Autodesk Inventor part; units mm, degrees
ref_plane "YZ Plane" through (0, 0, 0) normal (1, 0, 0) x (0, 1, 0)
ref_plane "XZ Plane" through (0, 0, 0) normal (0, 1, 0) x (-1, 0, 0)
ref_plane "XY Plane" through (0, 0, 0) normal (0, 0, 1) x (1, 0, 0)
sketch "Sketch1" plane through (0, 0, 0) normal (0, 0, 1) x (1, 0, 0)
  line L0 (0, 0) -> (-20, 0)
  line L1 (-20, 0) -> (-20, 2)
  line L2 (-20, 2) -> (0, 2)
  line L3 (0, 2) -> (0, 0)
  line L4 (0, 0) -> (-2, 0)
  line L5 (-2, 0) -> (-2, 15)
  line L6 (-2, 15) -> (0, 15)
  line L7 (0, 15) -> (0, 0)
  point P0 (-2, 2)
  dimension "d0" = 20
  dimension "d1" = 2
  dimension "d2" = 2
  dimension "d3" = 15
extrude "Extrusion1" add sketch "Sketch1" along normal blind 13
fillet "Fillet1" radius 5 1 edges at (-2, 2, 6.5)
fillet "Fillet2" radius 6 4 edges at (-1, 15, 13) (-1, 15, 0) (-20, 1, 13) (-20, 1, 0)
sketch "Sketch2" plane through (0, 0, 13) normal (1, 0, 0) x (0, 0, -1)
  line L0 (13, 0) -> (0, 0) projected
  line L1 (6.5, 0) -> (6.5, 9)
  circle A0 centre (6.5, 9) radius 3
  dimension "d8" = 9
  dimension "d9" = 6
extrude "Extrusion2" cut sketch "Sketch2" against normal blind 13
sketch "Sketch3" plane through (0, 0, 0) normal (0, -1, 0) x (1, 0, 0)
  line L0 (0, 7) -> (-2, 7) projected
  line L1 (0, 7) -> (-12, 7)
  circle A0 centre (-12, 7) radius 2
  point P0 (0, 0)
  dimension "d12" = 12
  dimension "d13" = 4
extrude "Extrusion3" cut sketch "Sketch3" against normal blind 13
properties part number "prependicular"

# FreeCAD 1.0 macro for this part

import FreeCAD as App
import Part
import Sketcher
from FreeCAD import Vector
Q = App.Units.Quantity


def edges_at(feature, points):
    """Names of the edges that pass closest to the given points."""
    edges = feature.Shape.Edges
    near = lambda p: min(range(len(edges)), key=lambda i: edges[i].distToShape(Part.Vertex(*p))[0])
    return sorted({f"Edge{near(p) + 1}" for p in points})


def add_polygon(sketch, points):
    """Adds a closed chain of lines whose ends are joined by coincident constraints."""
    first, n = sketch.GeometryCount, len(points)
    for a, b in zip(points, points[1:] + points[:1]):
        sketch.addGeometry(Part.LineSegment(App.Vector(*a, 0), App.Vector(*b, 0)), False)
    for i in range(n):
        sketch.addConstraint(Sketcher.Constraint("Coincident", first + i, 2, first + (i + 1) % n, 1))

doc = App.newDocument("Part")
body = doc.addObject("PartDesign::Body", "Body")

sketch1 = doc.addObject("Sketcher::SketchObject", "Sketch")
body.addObject(sketch1)
sketch1.AttachmentSupport = (doc.XY_Plane, [""])
sketch1.MapMode = "FlatFace"
add_polygon(sketch1, [(0, 0), (0, 15), (-2, 15), (-2, 2), (-20, 2), (-20, 0)])
sketch1.addConstraint([
    Sketcher.Constraint("Vertical", 0),
    Sketcher.Constraint("Horizontal", 1),
    Sketcher.Constraint("Vertical", 2),
    Sketcher.Constraint("Horizontal", 3),
    Sketcher.Constraint("Vertical", 4),
    Sketcher.Constraint("Horizontal", 5),
    Sketcher.Constraint("Coincident", 5, 2, -1, 1),
    Sketcher.Constraint("Equal", 1, 4),
    Sketcher.Constraint("DistanceX", 1, 2, 1, 1, Q("2 mm")),
    Sketcher.Constraint("DistanceX", 5, 1, 5, 2, Q("20 mm")),
    Sketcher.Constraint("DistanceY", 0, 1, 0, 2, Q("15 mm")),
])
pad1 = doc.addObject("PartDesign::Pad", "Pad")
body.addObject(pad1)
pad1.Profile = sketch1
pad1.Length = 13
doc.recompute()

fillet = doc.addObject("PartDesign::Fillet", "Fillet")
body.addObject(fillet)
fillet.Base = (pad1, edges_at(pad1, [(-2, 2, 6.5)]))
fillet.Radius = 5
doc.recompute()

fillet2 = doc.addObject("PartDesign::Fillet", "Fillet001")
body.addObject(fillet2)
fillet2.Base = (fillet, edges_at(fillet, [
    (-1, 15, 13),
    (-1, 15, 0),
    (-20, 1, 13),
    (-20, 1, 0),
]))
fillet2.Radius = 6

sketch2 = doc.addObject("Sketcher::SketchObject", "Sketch001")
body.addObject(sketch2)
sketch2.AttachmentSupport = (doc.YZ_Plane, [""])
sketch2.MapMode = "FlatFace"
sketch2.addGeometry(Part.Circle(Vector(9, 6.5, 0), Vector(0, 0, 1), 3), False)
sketch2.addConstraint([
    Sketcher.Constraint("Diameter", 0, Q("6 mm")),
    Sketcher.Constraint("DistanceX", -1, 1, 0, 3, Q("9 mm")),
    Sketcher.Constraint("DistanceY", -1, 1, 0, 3, Q("6.5 mm")),
])
pocket1 = doc.addObject("PartDesign::Pocket", "Pocket")
body.addObject(pocket1)
pocket1.Profile = sketch2
pocket1.Length = 13

sketch3 = doc.addObject("Sketcher::SketchObject", "Sketch002")
body.addObject(sketch3)
sketch3.AttachmentSupport = (doc.XZ_Plane, [""])
sketch3.MapMode = "FlatFace"
sketch3.addGeometry(Part.Circle(Vector(-12, 7, 0), Vector(0, 0, 1), 2), False)
sketch3.addConstraint([
    Sketcher.Constraint("Diameter", 0, Q("4 mm")),
    Sketcher.Constraint("DistanceX", 0, 3, -1, 1, Q("12 mm")),
    Sketcher.Constraint("DistanceY", -1, 1, 0, 3, Q("7 mm")),
])
pocket2 = doc.addObject("PartDesign::Pocket", "Pocket001")
body.addObject(pocket2)
pocket2.Profile = sketch3
pocket2.Length = 13

doc.recompute()
